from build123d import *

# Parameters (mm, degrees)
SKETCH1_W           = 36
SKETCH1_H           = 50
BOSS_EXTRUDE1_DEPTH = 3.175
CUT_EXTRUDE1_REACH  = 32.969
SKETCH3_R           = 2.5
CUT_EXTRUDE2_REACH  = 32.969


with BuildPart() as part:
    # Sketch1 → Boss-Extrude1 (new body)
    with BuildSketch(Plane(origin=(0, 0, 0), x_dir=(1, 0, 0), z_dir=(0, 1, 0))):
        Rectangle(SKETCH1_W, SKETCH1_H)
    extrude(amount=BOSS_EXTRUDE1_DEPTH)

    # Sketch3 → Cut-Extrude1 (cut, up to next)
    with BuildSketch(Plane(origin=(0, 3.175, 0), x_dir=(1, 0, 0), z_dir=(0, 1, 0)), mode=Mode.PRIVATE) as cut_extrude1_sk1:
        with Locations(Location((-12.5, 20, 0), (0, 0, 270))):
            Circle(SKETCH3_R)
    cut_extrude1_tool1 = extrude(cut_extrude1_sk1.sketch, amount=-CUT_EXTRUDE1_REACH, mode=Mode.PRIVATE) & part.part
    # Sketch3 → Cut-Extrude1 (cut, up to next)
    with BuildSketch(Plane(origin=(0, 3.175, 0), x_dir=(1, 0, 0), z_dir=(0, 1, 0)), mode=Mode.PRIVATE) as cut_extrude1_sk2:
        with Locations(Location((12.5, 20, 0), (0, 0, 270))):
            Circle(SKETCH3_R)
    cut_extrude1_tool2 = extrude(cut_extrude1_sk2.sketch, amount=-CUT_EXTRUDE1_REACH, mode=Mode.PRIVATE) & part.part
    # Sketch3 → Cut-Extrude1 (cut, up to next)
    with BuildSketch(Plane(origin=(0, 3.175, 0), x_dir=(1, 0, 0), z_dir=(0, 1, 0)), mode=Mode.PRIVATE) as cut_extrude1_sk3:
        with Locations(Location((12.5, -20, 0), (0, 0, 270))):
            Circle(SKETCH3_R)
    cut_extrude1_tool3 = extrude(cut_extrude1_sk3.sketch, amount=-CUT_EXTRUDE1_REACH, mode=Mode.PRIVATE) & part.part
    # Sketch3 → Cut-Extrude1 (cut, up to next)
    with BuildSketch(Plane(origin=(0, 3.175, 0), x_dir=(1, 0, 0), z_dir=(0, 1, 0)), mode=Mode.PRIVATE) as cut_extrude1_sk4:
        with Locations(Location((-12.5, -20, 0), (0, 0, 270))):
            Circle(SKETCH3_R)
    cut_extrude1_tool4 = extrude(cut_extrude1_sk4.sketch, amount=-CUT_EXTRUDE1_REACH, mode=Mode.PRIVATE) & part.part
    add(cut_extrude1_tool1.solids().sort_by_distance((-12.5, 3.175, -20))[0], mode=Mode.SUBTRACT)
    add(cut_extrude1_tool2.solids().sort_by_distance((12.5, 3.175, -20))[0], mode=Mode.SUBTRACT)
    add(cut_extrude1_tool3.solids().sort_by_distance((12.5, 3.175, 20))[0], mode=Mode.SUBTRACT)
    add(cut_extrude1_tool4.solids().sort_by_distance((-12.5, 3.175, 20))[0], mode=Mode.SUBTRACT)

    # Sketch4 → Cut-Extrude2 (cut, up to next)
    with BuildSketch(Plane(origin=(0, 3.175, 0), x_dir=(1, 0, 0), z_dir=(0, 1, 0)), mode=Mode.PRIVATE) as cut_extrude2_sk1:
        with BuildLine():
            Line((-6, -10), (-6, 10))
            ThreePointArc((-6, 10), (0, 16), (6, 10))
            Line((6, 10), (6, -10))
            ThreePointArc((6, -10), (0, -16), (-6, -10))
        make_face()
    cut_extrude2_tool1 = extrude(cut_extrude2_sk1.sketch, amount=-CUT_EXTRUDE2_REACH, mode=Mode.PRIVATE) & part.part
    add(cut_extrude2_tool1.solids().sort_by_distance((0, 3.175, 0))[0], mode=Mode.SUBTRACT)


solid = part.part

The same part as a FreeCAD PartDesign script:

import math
import FreeCAD as App
import Part
import Sketcher

V = App.Vector
Q = App.Units.Quantity


def add_polygon(sketch, points):
    """Adds a closed chain of lines whose ends are joined by coincident constraints."""
    first, n = sketch.GeometryCount, len(points)
    for a, b in zip(points, points[1:] + points[:1]):
        sketch.addGeometry(Part.LineSegment(App.Vector(*a, 0), App.Vector(*b, 0)), False)
    for i in range(n):
        sketch.addConstraint(Sketcher.Constraint("Coincident", first + i, 2, first + (i + 1) % n, 1))

doc = App.newDocument("Part")
body = doc.addObject("PartDesign::Body", "Body")

sketch1 = body.newObject("Sketcher::SketchObject", "Sketch")
sketch1.AttachmentSupport = (doc.getObject("XZ_Plane"), [""])
sketch1.MapMode = "FlatFace"
add_polygon(sketch1, [(-18, -25), (-18, 25), (18, 25), (18, -25)])
sketch1.addConstraint([
    Sketcher.Constraint("Vertical", 0),
    Sketcher.Constraint("Horizontal", 1),
    Sketcher.Constraint("Vertical", 2),
    Sketcher.Constraint("Horizontal", 3),
    Sketcher.Constraint("Symmetric", 0, 2, 2, 2, -1, 1),
    Sketcher.Constraint("DistanceX", 1, 1, 1, 2, Q("36 mm")),
    Sketcher.Constraint("DistanceY", 0, 1, 0, 2, Q("50 mm")),
])
pad1 = body.newObject("PartDesign::Pad", "Pad")
pad1.Profile = sketch1
pad1.Length = 3.175
pad1.Reversed = True

sketch2 = body.newObject("Sketcher::SketchObject", "Sketch001")
sketch2.AttachmentSupport = (doc.getObject("XZ_Plane"), [""])
sketch2.MapMode = "FlatFace"
sketch2.AttachmentOffset = App.Placement(V(0, 0, -3.175), App.Rotation())
sketch2.addGeometry(Part.Circle(V(-12.5, -20, 0), V(0, 0, 1), 2.5), False)
sketch2.addConstraint([
    Sketcher.Constraint("Diameter", 0, Q("5 mm")),
    Sketcher.Constraint("DistanceY", 0, 3, -1, 1, Q("20 mm")),
    Sketcher.Constraint("DistanceX", 0, 3, -1, 1, Q("12.5 mm")),
])
pocket1 = body.newObject("PartDesign::Pocket", "Pocket")
pocket1.Profile = sketch2
pocket1.Type = "UpToFirst"
pocket1.Reversed = True

sketch3 = body.newObject("Sketcher::SketchObject", "Sketch002")
sketch3.AttachmentSupport = (doc.getObject("XZ_Plane"), [""])
sketch3.MapMode = "FlatFace"
sketch3.AttachmentOffset = App.Placement(V(0, 0, -3.175), App.Rotation())
sketch3.addGeometry(Part.Circle(V(12.5, -20, 0), V(0, 0, 1), 2.5), False)
sketch3.addConstraint([
    Sketcher.Constraint("Diameter", 0, Q("5 mm")),
    Sketcher.Constraint("DistanceY", 0, 3, -1, 1, Q("20 mm")),
    Sketcher.Constraint("DistanceX", -1, 1, 0, 3, Q("12.5 mm")),
])
pocket2 = body.newObject("PartDesign::Pocket", "Pocket001")
pocket2.Profile = sketch3
pocket2.Type = "UpToFirst"
pocket2.Reversed = True

sketch4 = body.newObject("Sketcher::SketchObject", "Sketch003")
sketch4.AttachmentSupport = (doc.getObject("XZ_Plane"), [""])
sketch4.MapMode = "FlatFace"
sketch4.AttachmentOffset = App.Placement(V(0, 0, -3.175), App.Rotation())
sketch4.addGeometry(Part.Circle(V(12.5, 20, 0), V(0, 0, 1), 2.5), False)
sketch4.addConstraint([
    Sketcher.Constraint("Diameter", 0, Q("5 mm")),
    Sketcher.Constraint("DistanceY", -1, 1, 0, 3, Q("20 mm")),
    Sketcher.Constraint("DistanceX", -1, 1, 0, 3, Q("12.5 mm")),
])
pocket3 = body.newObject("PartDesign::Pocket", "Pocket002")
pocket3.Profile = sketch4
pocket3.Type = "UpToFirst"
pocket3.Reversed = True

sketch5 = body.newObject("Sketcher::SketchObject", "Sketch004")
sketch5.AttachmentSupport = (doc.getObject("XZ_Plane"), [""])
sketch5.MapMode = "FlatFace"
sketch5.AttachmentOffset = App.Placement(V(0, 0, -3.175), App.Rotation())
sketch5.addGeometry(Part.Circle(V(-12.5, 20, 0), V(0, 0, 1), 2.5), False)
sketch5.addConstraint([
    Sketcher.Constraint("Diameter", 0, Q("5 mm")),
    Sketcher.Constraint("DistanceY", -1, 1, 0, 3, Q("20 mm")),
    Sketcher.Constraint("DistanceX", 0, 3, -1, 1, Q("12.5 mm")),
])
pocket4 = body.newObject("PartDesign::Pocket", "Pocket003")
pocket4.Profile = sketch5
pocket4.Type = "UpToFirst"
pocket4.Reversed = True

sketch6 = body.newObject("Sketcher::SketchObject", "Sketch005")
sketch6.AttachmentSupport = (doc.getObject("XZ_Plane"), [""])
sketch6.MapMode = "FlatFace"
sketch6.AttachmentOffset = App.Placement(V(0, 0, -3.175), App.Rotation())
sketch6.addGeometry([
    Part.LineSegment(V(-6, -10, 0), V(-6, 10, 0)),
    Part.ArcOfCircle(Part.Circle(V(0, 10, 0), V(0, 0, 1), 6), math.radians(0), math.radians(180)),
    Part.LineSegment(V(6, 10, 0), V(6, -10, 0)),
    Part.ArcOfCircle(Part.Circle(V(0, -10, 0), V(0, 0, 1), 6), math.radians(180), math.radians(360)),
], False)
sketch6.addConstraint([
    Sketcher.Constraint("Tangent", 0, 2, 1, 2),
    Sketcher.Constraint("Tangent", 1, 1, 2, 1),
    Sketcher.Constraint("Tangent", 2, 2, 3, 2),
    Sketcher.Constraint("Tangent", 3, 1, 0, 1),
    Sketcher.Constraint("Vertical", 0),
    Sketcher.Constraint("Vertical", 2),
    Sketcher.Constraint("Symmetric", 1, 3, 3, 3, -1, 1),
    Sketcher.Constraint("Radius", 1, Q("6 mm")),
    Sketcher.Constraint("DistanceY", 0, 1, 0, 2, Q("20 mm")),
])
pocket5 = body.newObject("PartDesign::Pocket", "Pocket004")
pocket5.Profile = sketch6
pocket5.Type = "UpToFirst"
pocket5.Reversed = True

doc.recompute()
